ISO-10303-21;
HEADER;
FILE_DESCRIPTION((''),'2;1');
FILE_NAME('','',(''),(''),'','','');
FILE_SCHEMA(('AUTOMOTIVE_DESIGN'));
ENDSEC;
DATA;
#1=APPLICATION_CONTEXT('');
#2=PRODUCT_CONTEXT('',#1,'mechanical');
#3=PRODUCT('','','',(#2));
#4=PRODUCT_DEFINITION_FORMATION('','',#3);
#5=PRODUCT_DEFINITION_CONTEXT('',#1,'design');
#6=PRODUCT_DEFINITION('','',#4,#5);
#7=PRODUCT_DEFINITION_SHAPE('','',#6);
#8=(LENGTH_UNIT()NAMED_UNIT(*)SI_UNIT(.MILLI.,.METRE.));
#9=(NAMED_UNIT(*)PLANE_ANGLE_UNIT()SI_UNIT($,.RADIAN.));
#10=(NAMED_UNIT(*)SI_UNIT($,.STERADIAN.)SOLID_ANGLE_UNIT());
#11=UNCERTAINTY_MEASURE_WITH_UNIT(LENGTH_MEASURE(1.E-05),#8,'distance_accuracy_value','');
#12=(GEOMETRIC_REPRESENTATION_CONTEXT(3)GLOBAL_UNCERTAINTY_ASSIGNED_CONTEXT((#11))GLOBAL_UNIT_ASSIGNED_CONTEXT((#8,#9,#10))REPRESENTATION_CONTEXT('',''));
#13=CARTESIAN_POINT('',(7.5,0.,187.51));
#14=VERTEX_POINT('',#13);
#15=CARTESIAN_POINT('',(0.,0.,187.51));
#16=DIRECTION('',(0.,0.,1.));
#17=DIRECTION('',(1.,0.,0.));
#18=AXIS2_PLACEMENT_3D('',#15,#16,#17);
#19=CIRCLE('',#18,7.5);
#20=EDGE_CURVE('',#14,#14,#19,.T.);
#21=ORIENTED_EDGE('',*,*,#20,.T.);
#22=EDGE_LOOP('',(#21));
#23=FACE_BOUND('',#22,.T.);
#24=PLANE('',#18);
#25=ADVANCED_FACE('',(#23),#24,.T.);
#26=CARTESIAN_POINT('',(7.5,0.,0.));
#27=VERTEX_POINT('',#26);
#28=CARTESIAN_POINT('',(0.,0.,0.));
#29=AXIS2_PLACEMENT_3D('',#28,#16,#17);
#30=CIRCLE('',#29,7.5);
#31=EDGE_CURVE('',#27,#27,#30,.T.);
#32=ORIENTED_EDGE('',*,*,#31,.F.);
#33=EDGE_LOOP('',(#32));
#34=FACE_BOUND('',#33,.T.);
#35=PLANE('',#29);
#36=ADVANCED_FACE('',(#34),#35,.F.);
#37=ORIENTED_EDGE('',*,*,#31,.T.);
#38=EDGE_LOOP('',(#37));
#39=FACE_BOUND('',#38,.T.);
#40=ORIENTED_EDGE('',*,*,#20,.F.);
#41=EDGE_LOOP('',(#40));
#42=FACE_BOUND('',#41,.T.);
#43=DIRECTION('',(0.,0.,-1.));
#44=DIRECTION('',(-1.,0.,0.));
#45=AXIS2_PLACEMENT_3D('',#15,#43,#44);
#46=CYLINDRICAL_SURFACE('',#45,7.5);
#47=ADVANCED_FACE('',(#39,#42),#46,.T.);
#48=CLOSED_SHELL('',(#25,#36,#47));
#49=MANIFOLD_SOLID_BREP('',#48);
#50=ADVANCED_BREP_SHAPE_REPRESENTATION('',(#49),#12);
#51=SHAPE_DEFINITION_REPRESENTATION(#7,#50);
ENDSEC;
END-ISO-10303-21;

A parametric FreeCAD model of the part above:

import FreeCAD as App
import Part
import Sketcher

doc = App.newDocument("Part")
params = doc.addObject("Spreadsheet::Sheet", "Params")
for row, (alias, value) in enumerate([
    ("sketch1_diameter", "15 mm"),
    ("pad1_length", "187.51 mm"),
], start=1):
    params.set(f"A{row}", alias)
    params.set(f"B{row}", "=" + value)
    params.setAlias(f"B{row}", alias)

body = doc.addObject("PartDesign::Body", "Body")

# Sketch on XY plane
sketch1 = body.newObject("Sketcher::SketchObject", "Sketch")
sketch1.AttachmentSupport = (doc.getObject("XY_Plane"), [""])
sketch1.MapMode = "FlatFace"
sketch1.addGeometry(Part.Circle(App.Vector(0, 0, 0), App.Vector(0, 0, 1), 8), False)
sketch1.addConstraint([
    Sketcher.Constraint("Coincident", 0, 3, -1, 1),
    Sketcher.Constraint("Diameter", 0, 15.0),
])
sketch1.setExpression("Constraints[1]", "Params.sketch1_diameter")
pad1 = body.newObject("PartDesign::Pad", "Pad")
pad1.Profile = sketch1
pad1.setExpression("Length", "Params.pad1_length")

doc.recompute()
